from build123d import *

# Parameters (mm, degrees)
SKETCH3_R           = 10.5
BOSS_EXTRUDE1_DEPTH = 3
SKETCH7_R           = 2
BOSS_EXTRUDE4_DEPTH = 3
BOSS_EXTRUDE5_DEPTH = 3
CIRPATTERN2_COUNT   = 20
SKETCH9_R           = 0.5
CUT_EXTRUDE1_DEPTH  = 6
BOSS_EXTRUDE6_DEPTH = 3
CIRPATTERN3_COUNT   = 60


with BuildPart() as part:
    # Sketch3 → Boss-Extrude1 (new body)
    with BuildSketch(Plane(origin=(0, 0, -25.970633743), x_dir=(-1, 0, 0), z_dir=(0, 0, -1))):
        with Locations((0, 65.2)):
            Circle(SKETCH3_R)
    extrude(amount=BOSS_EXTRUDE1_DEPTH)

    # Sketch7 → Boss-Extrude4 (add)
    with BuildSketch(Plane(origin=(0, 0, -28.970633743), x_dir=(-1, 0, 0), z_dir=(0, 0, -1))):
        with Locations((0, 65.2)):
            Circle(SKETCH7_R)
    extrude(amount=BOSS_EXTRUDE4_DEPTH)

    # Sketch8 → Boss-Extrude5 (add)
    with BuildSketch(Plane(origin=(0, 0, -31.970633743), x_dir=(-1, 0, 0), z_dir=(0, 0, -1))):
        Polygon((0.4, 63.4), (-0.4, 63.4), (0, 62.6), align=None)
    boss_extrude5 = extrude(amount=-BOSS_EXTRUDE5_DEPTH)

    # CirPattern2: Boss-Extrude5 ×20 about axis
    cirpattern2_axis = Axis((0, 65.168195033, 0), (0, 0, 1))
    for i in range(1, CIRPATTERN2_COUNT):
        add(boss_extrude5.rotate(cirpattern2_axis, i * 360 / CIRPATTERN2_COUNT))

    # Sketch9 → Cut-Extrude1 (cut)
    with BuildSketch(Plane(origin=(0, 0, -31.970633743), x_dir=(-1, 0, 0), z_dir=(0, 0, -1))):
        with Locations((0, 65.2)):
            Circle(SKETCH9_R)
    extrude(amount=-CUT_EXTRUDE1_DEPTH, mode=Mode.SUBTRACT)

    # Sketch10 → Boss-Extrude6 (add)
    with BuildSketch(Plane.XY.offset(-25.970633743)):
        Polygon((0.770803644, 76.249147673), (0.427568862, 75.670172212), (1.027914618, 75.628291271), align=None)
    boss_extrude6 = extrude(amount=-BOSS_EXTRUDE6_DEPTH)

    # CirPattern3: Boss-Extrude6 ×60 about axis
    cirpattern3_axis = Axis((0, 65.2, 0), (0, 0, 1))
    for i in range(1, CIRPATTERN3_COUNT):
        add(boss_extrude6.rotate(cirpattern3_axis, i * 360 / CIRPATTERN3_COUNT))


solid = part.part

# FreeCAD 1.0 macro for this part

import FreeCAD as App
import Part
import Sketcher
Q = App.Units.Quantity

doc = App.newDocument("Part")
params = doc.addObject("Spreadsheet::Sheet", "Params")
for row, (alias, value) in enumerate([
    ("sketch1_diameter", "21 mm"),
    ("pad1_length", "3 mm"),
    ("sketch2_diameter", "4 mm"),
    ("pad2_length", "3 mm"),
    ("sketch3_width", "0.8 mm"),
    ("pad3_length", "3 mm"),
    ("sketch4_diameter", "1 mm"),
    ("pocket1_length", "6 mm"),
    ("pad4_length", "3 mm"),
], start=1):
    params.set(f"A{row}", alias)
    params.set(f"B{row}", "=" + value)
    params.setAlias(f"B{row}", alias)

body = doc.addObject("PartDesign::Body", "Body")

# Sketch on XY plane
sketch1 = body.newObject("Sketcher::SketchObject", "Sketch")
sketch1.AttachmentSupport = (doc.getObject("XY_Plane"), [""])
sketch1.MapMode = "FlatFace"
sketch1.AttachmentOffset = App.Placement(App.Vector(0, 0, -25.970634), App.Rotation())
sketch1.addGeometry(Part.Circle(App.Vector(0, 65, 0), App.Vector(0, 0, 1), 10), False)
sketch1.addConstraint([
    Sketcher.Constraint("PointOnObject", 0, 3, -2),
    Sketcher.Constraint("Diameter", 0, Q("21 mm")),
    Sketcher.Constraint("DistanceY", -1, 1, 0, 3, Q("65.2 mm")),
])
sketch1.setExpression("Constraints[1]", "Params.sketch1_diameter")
pad1 = body.newObject("PartDesign::Pad", "Pad")
pad1.Profile = sketch1
pad1.setExpression("Length", "Params.pad1_length")
pad1.Reversed = True

# Sketch on XY plane
sketch2 = body.newObject("Sketcher::SketchObject", "Sketch001")
sketch2.AttachmentSupport = (doc.getObject("XY_Plane"), [""])
sketch2.MapMode = "FlatFace"
sketch2.AttachmentOffset = App.Placement(App.Vector(0, 0, -28.970634), App.Rotation())
sketch2.addGeometry(Part.Circle(App.Vector(0, 65.2, 0), App.Vector(0, 0, 1), 2), False)
sketch2.addConstraint([
    Sketcher.Constraint("PointOnObject", 0, 3, -2),
    Sketcher.Constraint("Diameter", 0, Q("4 mm")),
    Sketcher.Constraint("DistanceY", -1, 1, 0, 3, Q("65.2 mm")),
])
sketch2.setExpression("Constraints[1]", "Params.sketch2_diameter")
pad2 = body.newObject("PartDesign::Pad", "Pad001")
pad2.Profile = sketch2
pad2.setExpression("Length", "Params.pad2_length")
pad2.Reversed = True

# Sketch on XY plane
sketch3 = body.newObject("Sketcher::SketchObject", "Sketch002")
sketch3.AttachmentSupport = (doc.getObject("XY_Plane"), [""])
sketch3.MapMode = "FlatFace"
sketch3.AttachmentOffset = App.Placement(App.Vector(0, 0, -31.970634), App.Rotation())
sketch3.addGeometry([
    Part.LineSegment(App.Vector(-0.4, 63.4, 0), App.Vector(0.4, 63.4, 0)),
    Part.LineSegment(App.Vector(0.4, 63.4, 0), App.Vector(0, 62.6, 0)),
    Part.LineSegment(App.Vector(0, 62.6, 0), App.Vector(-0.4, 63.4, 0)),
], False)
sketch3.addConstraint([
    Sketcher.Constraint("Coincident", 0, 2, 1, 1),
    Sketcher.Constraint("Coincident", 1, 2, 2, 1),
    Sketcher.Constraint("Coincident", 2, 2, 0, 1),
    Sketcher.Constraint("Horizontal", 0),
    Sketcher.Constraint("PointOnObject", 1, 2, -2),
    Sketcher.Constraint("Equal", 1, 2),
    Sketcher.Constraint("DistanceX", 0, 1, 0, 2, Q("0.8 mm")),
    Sketcher.Constraint("DistanceY", -1, 1, 0, 2, Q("63.4 mm")),
    Sketcher.Constraint("DistanceY", -1, 1, 1, 2, Q("62.6 mm")),
])
sketch3.setExpression("Constraints[6]", "Params.sketch3_width")
pad3 = body.newObject("PartDesign::Pad", "Pad002")
pad3.Profile = sketch3
pad3.setExpression("Length", "Params.pad3_length")
doc.recompute()

datumline = body.newObject("PartDesign::Line", "DatumLine")
datumline.Placement = App.Placement(App.Vector(0, 65.168195, 0), App.Rotation(App.Vector(0, 0, 1), App.Vector(0, 0, 1)))
polarpattern = body.newObject("PartDesign::PolarPattern", "PolarPattern")
polarpattern.Originals = [pad3]
polarpattern.Axis = (datumline, [""])
polarpattern.Angle = 360
polarpattern.Occurrences = 20
body.Tip = polarpattern

# Sketch on XY plane
sketch4 = body.newObject("Sketcher::SketchObject", "Sketch003")
sketch4.AttachmentSupport = (doc.getObject("XY_Plane"), [""])
sketch4.MapMode = "FlatFace"
sketch4.AttachmentOffset = App.Placement(App.Vector(0, 0, -31.970634), App.Rotation())
sketch4.addGeometry(Part.Circle(App.Vector(0, 65.2, 0), App.Vector(0, 0, 1), 0.5), False)
sketch4.addConstraint([
    Sketcher.Constraint("PointOnObject", 0, 3, -2),
    Sketcher.Constraint("Diameter", 0, Q("1 mm")),
    Sketcher.Constraint("DistanceY", -1, 1, 0, 3, Q("65.2 mm")),
])
sketch4.setExpression("Constraints[1]", "Params.sketch4_diameter")
pocket1 = body.newObject("PartDesign::Pocket", "Pocket")
pocket1.Profile = sketch4
pocket1.setExpression("Length", "Params.pocket1_length")
pocket1.Reversed = True

# Sketch on XY plane
sketch5 = body.newObject("Sketcher::SketchObject", "Sketch004")
sketch5.AttachmentSupport = (doc.getObject("XY_Plane"), [""])
sketch5.MapMode = "FlatFace"
sketch5.AttachmentOffset = App.Placement(App.Vector(0, 0, -25.970634), App.Rotation())
sketch5.addGeometry([
    Part.LineSegment(App.Vector(0.8, 76.2, 0), App.Vector(0.4, 75.7, 0)),
    Part.LineSegment(App.Vector(0.4, 75.7, 0), App.Vector(1, 75.6, 0)),
    Part.LineSegment(App.Vector(1, 75.6, 0), App.Vector(0.8, 76.2, 0)),
], False)
sketch5.addConstraint([
    Sketcher.Constraint("Coincident", 0, 2, 1, 1),
    Sketcher.Constraint("Coincident", 1, 2, 2, 1),
    Sketcher.Constraint("Coincident", 2, 2, 0, 1),
    Sketcher.Constraint("Distance", 0, Q("0.67307 mm")),
    Sketcher.Constraint("Distance", 2, Q("0.671989 mm")),
    Sketcher.Constraint("DistanceX", -1, 1, 0, 2, Q("0.427569 mm")),
    Sketcher.Constraint("DistanceY", -1, 1, 1, 2, Q("75.628291 mm")),
    Sketcher.Constraint("DistanceY", 1, 2, 0, 2, Q("0.041881 mm")),
    Sketcher.Constraint("DistanceX", 2, 2, 1, 2, Q("0.257111 mm")),
])
pad4 = body.newObject("PartDesign::Pad", "Pad003")
pad4.Profile = sketch5
pad4.setExpression("Length", "Params.pad4_length")
pad4.Reversed = True
doc.recompute()

datumline2 = body.newObject("PartDesign::Line", "DatumLine001")
datumline2.Placement = App.Placement(App.Vector(0, 65.2, 0), App.Rotation(App.Vector(0, 0, 1), App.Vector(0, 0, 1)))
polarpattern2 = body.newObject("PartDesign::PolarPattern", "PolarPattern001")
polarpattern2.Originals = [pad4]
polarpattern2.Axis = (datumline2, [""])
polarpattern2.Angle = 360
polarpattern2.Occurrences = 60
body.Tip = polarpattern2

doc.recompute()
